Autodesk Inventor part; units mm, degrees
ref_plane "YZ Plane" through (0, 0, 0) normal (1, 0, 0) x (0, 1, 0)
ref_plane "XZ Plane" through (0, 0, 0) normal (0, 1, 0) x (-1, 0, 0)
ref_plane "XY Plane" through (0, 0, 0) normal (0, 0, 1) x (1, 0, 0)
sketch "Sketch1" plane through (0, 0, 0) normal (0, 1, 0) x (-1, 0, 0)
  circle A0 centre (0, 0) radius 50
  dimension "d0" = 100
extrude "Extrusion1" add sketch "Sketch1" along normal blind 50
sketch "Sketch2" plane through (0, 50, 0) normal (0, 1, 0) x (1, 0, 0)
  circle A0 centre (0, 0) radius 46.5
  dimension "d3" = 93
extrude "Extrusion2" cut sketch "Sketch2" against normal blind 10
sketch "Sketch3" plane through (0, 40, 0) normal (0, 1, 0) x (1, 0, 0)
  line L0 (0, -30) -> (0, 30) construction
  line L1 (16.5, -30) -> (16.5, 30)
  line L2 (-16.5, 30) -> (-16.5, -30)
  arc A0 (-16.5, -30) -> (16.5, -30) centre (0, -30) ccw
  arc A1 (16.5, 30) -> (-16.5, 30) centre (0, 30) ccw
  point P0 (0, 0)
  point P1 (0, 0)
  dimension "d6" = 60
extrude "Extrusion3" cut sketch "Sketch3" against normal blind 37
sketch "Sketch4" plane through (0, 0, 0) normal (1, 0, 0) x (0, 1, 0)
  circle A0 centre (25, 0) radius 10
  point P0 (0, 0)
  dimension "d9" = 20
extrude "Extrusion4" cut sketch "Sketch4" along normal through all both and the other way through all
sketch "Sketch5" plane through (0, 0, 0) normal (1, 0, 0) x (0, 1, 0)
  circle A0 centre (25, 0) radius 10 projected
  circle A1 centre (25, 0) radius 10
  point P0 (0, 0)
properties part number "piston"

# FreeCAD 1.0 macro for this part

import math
import FreeCAD as App
import Part
import Sketcher
Q = App.Units.Quantity

doc = App.newDocument("Part")
body = doc.addObject("PartDesign::Body", "Body")

# Sketch on XZ plane
sketch1 = body.newObject("Sketcher::SketchObject", "Sketch")
sketch1.AttachmentSupport = (doc.getObject("XZ_Plane"), [""])
sketch1.MapMode = "FlatFace"
sketch1.addGeometry(Part.Circle(App.Vector(0, 0, 0), App.Vector(0, 0, 1), 50), False)
sketch1.addConstraint([
    Sketcher.Constraint("Coincident", 0, 3, -1, 1),
    Sketcher.Constraint("Diameter", 0, Q("100 mm")),
])
pad1 = body.newObject("PartDesign::Pad", "Pad")
pad1.Profile = sketch1
pad1.Length = 50
pad1.Reversed = True

# Sketch on XZ plane
sketch2 = body.newObject("Sketcher::SketchObject", "Sketch001")
sketch2.AttachmentSupport = (doc.getObject("XZ_Plane"), [""])
sketch2.MapMode = "FlatFace"
sketch2.AttachmentOffset = App.Placement(App.Vector(0, 0, -50), App.Rotation())
sketch2.addGeometry(Part.Circle(App.Vector(0, 0, 0), App.Vector(0, 0, 1), 46.5), False)
sketch2.addConstraint([
    Sketcher.Constraint("Coincident", 0, 3, -1, 1),
    Sketcher.Constraint("Diameter", 0, Q("93 mm")),
])
pocket1 = body.newObject("PartDesign::Pocket", "Pocket")
pocket1.Profile = sketch2
pocket1.Length = 10
pocket1.Reversed = True

# Sketch on XZ plane
sketch3 = body.newObject("Sketcher::SketchObject", "Sketch002")
sketch3.AttachmentSupport = (doc.getObject("XZ_Plane"), [""])
sketch3.MapMode = "FlatFace"
sketch3.AttachmentOffset = App.Placement(App.Vector(0, 0, -40), App.Rotation())
sketch3.addGeometry([
    Part.ArcOfCircle(Part.Circle(App.Vector(0, 30, 0), App.Vector(0, 0, 1), 16.5), math.radians(0), math.radians(180)),
    Part.LineSegment(App.Vector(16.5, 30, 0), App.Vector(16.5, -30, 0)),
    Part.ArcOfCircle(Part.Circle(App.Vector(0, -30, 0), App.Vector(0, 0, 1), 16.5), math.radians(180), math.radians(360)),
    Part.LineSegment(App.Vector(-16.5, -30, 0), App.Vector(-16.5, 30, 0)),
], False)
sketch3.addConstraint([
    Sketcher.Constraint("Tangent", 0, 1, 1, 1),
    Sketcher.Constraint("Tangent", 1, 2, 2, 2),
    Sketcher.Constraint("Tangent", 2, 1, 3, 1),
    Sketcher.Constraint("Tangent", 3, 2, 0, 2),
    Sketcher.Constraint("Vertical", 1),
    Sketcher.Constraint("Vertical", 3),
    Sketcher.Constraint("Symmetric", 0, 3, 2, 3, -1, 1),
    Sketcher.Constraint("DistanceY", 1, 2, 1, 1, Q("60 mm")),
    Sketcher.Constraint("Radius", 0, Q("16.5 mm")),
])
pocket2 = body.newObject("PartDesign::Pocket", "Pocket001")
pocket2.Profile = sketch3
pocket2.Length = 37
pocket2.Reversed = True

# Sketch on YZ plane
sketch4 = body.newObject("Sketcher::SketchObject", "Sketch003")
sketch4.AttachmentSupport = (doc.getObject("YZ_Plane"), [""])
sketch4.MapMode = "FlatFace"
sketch4.addGeometry(Part.Circle(App.Vector(25, 0, 0), App.Vector(0, 0, 1), 10), False)
sketch4.addConstraint([
    Sketcher.Constraint("PointOnObject", 0, 3, -1),
    Sketcher.Constraint("Diameter", 0, Q("20 mm")),
    Sketcher.Constraint("DistanceX", -1, 1, 0, 3, Q("25 mm")),
])
pocket3 = body.newObject("PartDesign::Pocket", "Pocket002")
pocket3.Profile = sketch4
pocket3.Type = "ThroughAll"
pocket3.Midplane = True

doc.recompute()
